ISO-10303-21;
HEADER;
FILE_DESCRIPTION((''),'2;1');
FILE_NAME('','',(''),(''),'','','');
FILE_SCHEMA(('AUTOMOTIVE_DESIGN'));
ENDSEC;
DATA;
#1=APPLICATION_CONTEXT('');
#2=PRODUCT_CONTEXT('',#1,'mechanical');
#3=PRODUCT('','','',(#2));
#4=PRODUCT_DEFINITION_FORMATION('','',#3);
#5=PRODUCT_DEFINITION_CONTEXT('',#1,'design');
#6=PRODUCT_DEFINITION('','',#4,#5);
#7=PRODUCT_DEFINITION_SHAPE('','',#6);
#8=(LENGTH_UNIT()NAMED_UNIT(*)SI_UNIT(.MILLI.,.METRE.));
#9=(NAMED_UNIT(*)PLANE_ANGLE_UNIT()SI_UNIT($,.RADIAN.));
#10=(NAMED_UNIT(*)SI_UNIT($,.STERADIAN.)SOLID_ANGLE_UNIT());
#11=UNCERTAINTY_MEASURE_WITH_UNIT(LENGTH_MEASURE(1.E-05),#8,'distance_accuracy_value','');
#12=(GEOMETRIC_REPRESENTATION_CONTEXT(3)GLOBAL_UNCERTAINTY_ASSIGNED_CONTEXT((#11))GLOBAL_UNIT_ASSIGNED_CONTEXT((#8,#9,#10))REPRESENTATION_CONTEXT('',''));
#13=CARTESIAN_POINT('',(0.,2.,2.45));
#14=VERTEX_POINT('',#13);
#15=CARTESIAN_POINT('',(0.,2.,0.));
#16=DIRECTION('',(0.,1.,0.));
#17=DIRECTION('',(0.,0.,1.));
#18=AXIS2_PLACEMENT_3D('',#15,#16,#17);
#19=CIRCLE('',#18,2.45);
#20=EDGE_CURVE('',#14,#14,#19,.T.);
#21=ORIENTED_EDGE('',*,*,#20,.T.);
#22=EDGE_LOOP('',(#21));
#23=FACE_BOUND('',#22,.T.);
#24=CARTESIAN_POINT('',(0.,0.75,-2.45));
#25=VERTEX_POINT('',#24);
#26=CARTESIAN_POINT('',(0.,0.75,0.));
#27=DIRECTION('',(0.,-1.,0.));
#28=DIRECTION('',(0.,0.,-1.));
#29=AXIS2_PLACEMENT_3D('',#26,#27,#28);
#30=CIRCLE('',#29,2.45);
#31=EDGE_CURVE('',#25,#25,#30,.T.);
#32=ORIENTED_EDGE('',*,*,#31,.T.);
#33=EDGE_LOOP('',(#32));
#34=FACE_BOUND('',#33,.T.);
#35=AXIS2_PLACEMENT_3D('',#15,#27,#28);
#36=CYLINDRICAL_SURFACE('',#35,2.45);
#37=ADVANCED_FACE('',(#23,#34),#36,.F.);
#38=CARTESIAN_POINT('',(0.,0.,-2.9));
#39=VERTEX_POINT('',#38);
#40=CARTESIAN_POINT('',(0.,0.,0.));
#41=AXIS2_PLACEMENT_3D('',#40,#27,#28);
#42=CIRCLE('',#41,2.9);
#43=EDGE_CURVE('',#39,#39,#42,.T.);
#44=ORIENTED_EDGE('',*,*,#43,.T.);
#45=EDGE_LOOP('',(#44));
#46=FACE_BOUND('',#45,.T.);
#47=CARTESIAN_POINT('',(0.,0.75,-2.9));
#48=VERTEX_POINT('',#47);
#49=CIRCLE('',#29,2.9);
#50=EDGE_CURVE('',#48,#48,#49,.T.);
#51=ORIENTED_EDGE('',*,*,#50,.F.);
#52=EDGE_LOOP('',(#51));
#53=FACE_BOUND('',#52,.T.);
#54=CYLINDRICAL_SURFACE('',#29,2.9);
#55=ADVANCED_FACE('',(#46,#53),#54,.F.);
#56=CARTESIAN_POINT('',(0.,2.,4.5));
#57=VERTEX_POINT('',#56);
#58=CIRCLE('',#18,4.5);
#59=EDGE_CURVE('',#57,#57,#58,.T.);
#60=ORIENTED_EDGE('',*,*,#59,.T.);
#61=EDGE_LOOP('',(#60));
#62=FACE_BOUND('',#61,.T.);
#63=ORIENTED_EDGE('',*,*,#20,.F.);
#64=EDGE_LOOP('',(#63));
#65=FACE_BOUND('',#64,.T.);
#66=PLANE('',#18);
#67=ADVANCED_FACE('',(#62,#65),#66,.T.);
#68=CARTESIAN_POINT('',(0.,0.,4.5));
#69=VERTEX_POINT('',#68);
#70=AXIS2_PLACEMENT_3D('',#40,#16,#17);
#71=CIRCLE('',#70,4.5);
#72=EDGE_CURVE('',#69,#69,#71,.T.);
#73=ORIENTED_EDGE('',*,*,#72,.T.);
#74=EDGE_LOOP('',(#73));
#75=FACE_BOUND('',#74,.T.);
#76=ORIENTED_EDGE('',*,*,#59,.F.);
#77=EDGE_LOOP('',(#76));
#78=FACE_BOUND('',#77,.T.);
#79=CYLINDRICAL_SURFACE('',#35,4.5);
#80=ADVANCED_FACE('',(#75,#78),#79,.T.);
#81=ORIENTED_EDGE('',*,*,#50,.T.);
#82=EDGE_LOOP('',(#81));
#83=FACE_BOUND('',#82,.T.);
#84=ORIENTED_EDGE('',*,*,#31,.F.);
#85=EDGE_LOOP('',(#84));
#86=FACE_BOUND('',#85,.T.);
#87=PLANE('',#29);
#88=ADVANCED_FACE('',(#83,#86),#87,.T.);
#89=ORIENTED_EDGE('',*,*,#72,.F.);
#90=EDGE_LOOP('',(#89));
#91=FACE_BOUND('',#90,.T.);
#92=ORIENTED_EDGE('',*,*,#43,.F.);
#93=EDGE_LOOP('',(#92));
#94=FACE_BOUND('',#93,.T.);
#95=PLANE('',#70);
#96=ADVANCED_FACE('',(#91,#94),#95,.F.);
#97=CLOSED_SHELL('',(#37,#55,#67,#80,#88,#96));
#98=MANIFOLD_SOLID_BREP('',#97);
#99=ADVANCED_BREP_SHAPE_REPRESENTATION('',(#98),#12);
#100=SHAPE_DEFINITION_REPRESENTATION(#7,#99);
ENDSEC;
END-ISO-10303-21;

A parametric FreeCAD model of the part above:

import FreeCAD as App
import Part
import Sketcher

V = App.Vector
Q = App.Units.Quantity

doc = App.newDocument("Part")
body = doc.addObject("PartDesign::Body", "Body")

# Sketch on XZ plane
sketch1 = doc.addObject("Sketcher::SketchObject", "Sketch")
body.addObject(sketch1)
sketch1.AttachmentSupport = (doc.XZ_Plane, [""])
sketch1.MapMode = "FlatFace"
sketch1.addGeometry([
    Part.Circle(V(0, 0, 0), V(0, 0, 1), 4.5),
    Part.Circle(V(0, 0, 0), V(0, 0, 1), 2.45),
], False)
sketch1.addConstraint([
    Sketcher.Constraint("Coincident", 0, 3, -1, 1),
    Sketcher.Constraint("Coincident", 1, 3, -1, 1),
    Sketcher.Constraint("Diameter", 0, Q("9 mm")),
    Sketcher.Constraint("Diameter", 1, Q("4.9 mm")),
])
pad1 = doc.addObject("PartDesign::Pad", "Pad")
body.addObject(pad1)
pad1.Profile = sketch1
pad1.Length = 2
pad1.Reversed = True

# Sketch on XZ plane
sketch2 = doc.addObject("Sketcher::SketchObject", "Sketch001")
body.addObject(sketch2)
sketch2.AttachmentSupport = (doc.XZ_Plane, [""])
sketch2.MapMode = "FlatFace"
sketch2.addGeometry(Part.Circle(V(0, 0, 0), V(0, 0, 1), 2.9), False)
sketch2.addConstraint([
    Sketcher.Constraint("Coincident", 0, 3, -1, 1),
    Sketcher.Constraint("Diameter", 0, Q("5.8 mm")),
])
pocket1 = doc.addObject("PartDesign::Pocket", "Pocket")
body.addObject(pocket1)
pocket1.Profile = sketch2
pocket1.Length = 0.75

doc.recompute()
